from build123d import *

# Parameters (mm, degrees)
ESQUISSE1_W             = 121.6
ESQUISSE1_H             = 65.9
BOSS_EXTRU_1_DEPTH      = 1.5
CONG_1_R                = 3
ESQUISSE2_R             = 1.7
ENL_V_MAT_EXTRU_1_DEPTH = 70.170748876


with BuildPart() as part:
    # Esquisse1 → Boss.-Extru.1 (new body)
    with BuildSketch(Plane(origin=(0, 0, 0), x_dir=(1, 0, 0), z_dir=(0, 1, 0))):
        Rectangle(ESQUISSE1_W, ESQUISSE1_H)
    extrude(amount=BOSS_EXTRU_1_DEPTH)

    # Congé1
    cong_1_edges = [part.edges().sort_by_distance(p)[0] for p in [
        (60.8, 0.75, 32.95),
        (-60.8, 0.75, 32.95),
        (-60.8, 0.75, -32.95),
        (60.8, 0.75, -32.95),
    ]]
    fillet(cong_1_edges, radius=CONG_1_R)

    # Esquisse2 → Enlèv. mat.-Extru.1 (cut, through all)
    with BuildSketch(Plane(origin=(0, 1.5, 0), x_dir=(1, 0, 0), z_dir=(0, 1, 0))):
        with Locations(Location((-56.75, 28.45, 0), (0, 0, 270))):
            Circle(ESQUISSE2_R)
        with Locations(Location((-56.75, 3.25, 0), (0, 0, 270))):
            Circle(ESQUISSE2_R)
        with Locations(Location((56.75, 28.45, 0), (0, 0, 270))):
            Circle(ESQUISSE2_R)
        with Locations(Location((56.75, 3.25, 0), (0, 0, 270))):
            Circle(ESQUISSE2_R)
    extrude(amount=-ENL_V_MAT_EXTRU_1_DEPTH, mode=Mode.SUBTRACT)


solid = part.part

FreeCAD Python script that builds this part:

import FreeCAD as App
import Part
import Sketcher

V = App.Vector
Q = App.Units.Quantity


def edges_at(feature, points):
    """Names of the edges that pass closest to the given points."""
    edges = feature.Shape.Edges
    near = lambda p: min(range(len(edges)), key=lambda i: edges[i].distToShape(Part.Vertex(*p))[0])
    return sorted({f"Edge{near(p) + 1}" for p in points})

doc = App.newDocument("Part")
params = doc.addObject("Spreadsheet::Sheet", "Params")
for row, (alias, value) in enumerate([
    ("sketch1_width", "121.6 mm"),
    ("sketch1_height", "65.9 mm"),
    ("pad1_length", "1.5 mm"),
    ("fillet_radius", "3 mm"),
    ("sketch2_diameter", "3.4 mm"),
], start=1):
    params.set(f"A{row}", alias)
    params.set(f"B{row}", "=" + value)
    params.setAlias(f"B{row}", alias)

body = doc.addObject("PartDesign::Body", "Body")

# Sketch on XZ plane
sketch1 = body.newObject("Sketcher::SketchObject", "Sketch")
sketch1.AttachmentSupport = (doc.getObject("XZ_Plane"), [""])
sketch1.MapMode = "FlatFace"
sketch1.addGeometry([
    Part.LineSegment(V(-61, -33, 0), V(-61, 33, 0)),
    Part.LineSegment(V(-61, 33, 0), V(61, 33, 0)),
    Part.LineSegment(V(61, 33, 0), V(61, -33, 0)),
    Part.LineSegment(V(61, -33, 0), V(-61, -33, 0)),
], False)
sketch1.addConstraint([
    Sketcher.Constraint("Coincident", 0, 2, 1, 1),
    Sketcher.Constraint("Coincident", 1, 2, 2, 1),
    Sketcher.Constraint("Coincident", 2, 2, 3, 1),
    Sketcher.Constraint("Coincident", 3, 2, 0, 1),
    Sketcher.Constraint("Vertical", 0),
    Sketcher.Constraint("Horizontal", 1),
    Sketcher.Constraint("Vertical", 2),
    Sketcher.Constraint("Horizontal", 3),
    Sketcher.Constraint("Symmetric", 0, 2, 2, 2, -1, 1),
    Sketcher.Constraint("DistanceX", 1, 1, 1, 2, Q("121.6 mm")),
    Sketcher.Constraint("DistanceY", 0, 1, 0, 2, Q("65.9 mm")),
])
sketch1.setExpression("Constraints[9]", "Params.sketch1_width")
sketch1.setExpression("Constraints[10]", "Params.sketch1_height")
pad1 = body.newObject("PartDesign::Pad", "Pad")
pad1.Profile = sketch1
pad1.setExpression("Length", "Params.pad1_length")
pad1.Reversed = True
doc.recompute()

fillet = body.newObject("PartDesign::Fillet", "Fillet")
fillet.Base = (pad1, edges_at(pad1, [
    (60.8, 0.75, 32.95),
    (-60.8, 0.75, 32.95),
    (-60.8, 0.75, -32.95),
    (60.8, 0.75, -32.95),
]))
fillet.setExpression("Radius", "Params.fillet_radius")

# Sketch on XZ plane
sketch2 = body.newObject("Sketcher::SketchObject", "Sketch001")
sketch2.AttachmentSupport = (doc.getObject("XZ_Plane"), [""])
sketch2.MapMode = "FlatFace"
sketch2.AttachmentOffset = App.Placement(V(0, 0, -1.5), App.Rotation())
sketch2.addGeometry([
    Part.Circle(V(-56.8, -28.4, 0), V(0, 0, 1), 1.7),
    Part.Circle(V(-56.8, -3.2, 0), V(0, 0, 1), 1.7),
    Part.Circle(V(56.8, -28.4, 0), V(0, 0, 1), 1.7),
    Part.Circle(V(56.8, -3.2, 0), V(0, 0, 1), 1.7),
], False)
sketch2.addConstraint([
    Sketcher.Constraint("Equal", 0, 1),
    Sketcher.Constraint("Equal", 1, 2),
    Sketcher.Constraint("Equal", 2, 3),
    Sketcher.Constraint("Symmetric", 0, 3, 2, 3, -2),
    Sketcher.Constraint("Symmetric", 1, 3, 3, 3, -2),
    Sketcher.Constraint("Vertical", 0, 3, 1, 3),
    Sketcher.Constraint("Diameter", 0, Q("3.4 mm")),
    Sketcher.Constraint("DistanceY", 0, 3, 1, 3, Q("25.2 mm")),
    Sketcher.Constraint("DistanceX", 0, 3, 2, 3, Q("113.5 mm")),
    Sketcher.Constraint("DistanceY", 0, 3, -1, 1, Q("28.45 mm")),
])
sketch2.setExpression("Constraints[6]", "Params.sketch2_diameter")
pocket1 = body.newObject("PartDesign::Pocket", "Pocket")
pocket1.Profile = sketch2
pocket1.Type = "ThroughAll"
pocket1.Reversed = True

doc.recompute()
